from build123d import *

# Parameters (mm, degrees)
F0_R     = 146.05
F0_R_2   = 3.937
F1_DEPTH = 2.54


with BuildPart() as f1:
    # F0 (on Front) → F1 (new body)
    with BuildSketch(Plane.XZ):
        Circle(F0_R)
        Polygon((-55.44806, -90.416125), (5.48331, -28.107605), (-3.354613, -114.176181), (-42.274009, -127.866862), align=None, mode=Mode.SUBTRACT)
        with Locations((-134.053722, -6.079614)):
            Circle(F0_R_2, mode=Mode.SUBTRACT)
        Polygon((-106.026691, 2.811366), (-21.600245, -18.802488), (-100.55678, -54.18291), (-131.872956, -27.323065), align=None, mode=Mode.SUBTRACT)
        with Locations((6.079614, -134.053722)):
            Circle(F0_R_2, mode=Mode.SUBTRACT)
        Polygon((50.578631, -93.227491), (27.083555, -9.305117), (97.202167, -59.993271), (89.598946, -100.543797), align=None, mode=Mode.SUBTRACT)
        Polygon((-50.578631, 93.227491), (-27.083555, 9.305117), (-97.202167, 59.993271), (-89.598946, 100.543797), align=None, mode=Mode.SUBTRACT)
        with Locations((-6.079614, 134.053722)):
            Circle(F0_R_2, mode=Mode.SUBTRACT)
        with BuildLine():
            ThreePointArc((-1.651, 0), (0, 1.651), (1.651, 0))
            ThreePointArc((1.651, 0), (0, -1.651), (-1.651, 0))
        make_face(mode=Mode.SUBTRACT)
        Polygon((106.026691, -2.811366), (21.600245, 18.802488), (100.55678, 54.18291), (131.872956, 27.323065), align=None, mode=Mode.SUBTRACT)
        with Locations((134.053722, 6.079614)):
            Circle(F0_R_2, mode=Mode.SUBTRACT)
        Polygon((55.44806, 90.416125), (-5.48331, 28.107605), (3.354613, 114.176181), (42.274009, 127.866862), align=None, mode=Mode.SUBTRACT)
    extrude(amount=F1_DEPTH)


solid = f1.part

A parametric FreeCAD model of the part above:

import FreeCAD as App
import Part
import Sketcher

V = App.Vector
Q = App.Units.Quantity


def add_polygon(sketch, points):
    """Adds a closed chain of lines whose ends are joined by coincident constraints."""
    first, n = sketch.GeometryCount, len(points)
    for a, b in zip(points, points[1:] + points[:1]):
        sketch.addGeometry(Part.LineSegment(App.Vector(*a, 0), App.Vector(*b, 0)), False)
    for i in range(n):
        sketch.addConstraint(Sketcher.Constraint("Coincident", first + i, 2, first + (i + 1) % n, 1))

doc = App.newDocument("Part")
body = doc.addObject("PartDesign::Body", "Body")

# Sketch on XZ plane
sketch1 = doc.addObject("Sketcher::SketchObject", "Sketch")
body.addObject(sketch1)
sketch1.AttachmentSupport = (doc.XZ_Plane, [""])
sketch1.MapMode = "FlatFace"
sketch1.addGeometry(Part.Circle(V(0, 0, 0), V(0, 0, 1), 146.1), False)  # 0
add_polygon(sketch1, [(-42.3, -127.9), (-55.4, -90.4), (5.5, -28.1), (-3.4, -114.2)])  # lines 1-4
sketch1.addGeometry(Part.Circle(V(-134.1, -6.1, 0), V(0, 0, 1), 3.9), False)  # 5
add_polygon(sketch1, [(-131.9, -27.3), (-106, 2.8), (-21.6, -18.8), (-100.6, -54.2)])  # lines 6-9
sketch1.addGeometry(Part.Circle(V(6.1, -134.1, 0), V(0, 0, 1), 3.9), False)  # 10
add_polygon(sketch1, [(89.6, -100.5), (50.6, -93.2), (27.1, -9.3), (97.2, -60)])  # lines 11-14
add_polygon(sketch1, [(-89.6, 100.5), (-50.6, 93.2), (-27.1, 9.3), (-97.2, 60)])  # lines 15-18
sketch1.addGeometry(Part.Circle(V(-6.1, 134.1, 0), V(0, 0, 1), 3.9), False)  # 19
sketch1.addGeometry(Part.Circle(V(0, 0, 0), V(0, 0, 1), 1.7), False)  # 20
add_polygon(sketch1, [(131.9, 27.3), (106, -2.8), (21.6, 18.8), (100.6, 54.2)])  # lines 21-24
sketch1.addGeometry(Part.Circle(V(134.1, 6.1, 0), V(0, 0, 1), 3.9), False)  # 25
add_polygon(sketch1, [(42.3, 127.9), (55.4, 90.4), (-5.5, 28.1), (3.4, 114.2)])  # lines 26-29
sketch1.addConstraint([
    Sketcher.Constraint("Coincident", 0, 3, -1, 1),
    Sketcher.Constraint("Coincident", 20, 3, -1, 1),
    Sketcher.Constraint("Equal", 5, 10),
    Sketcher.Constraint("Equal", 10, 19),
    Sketcher.Constraint("Equal", 19, 25),
    Sketcher.Constraint("Symmetric", 10, 3, 19, 3, -1, 1),
    Sketcher.Constraint("Symmetric", 5, 3, 25, 3, -1, 1),
    Sketcher.Constraint("Symmetric", 11, 2, 15, 2, -1, 1),
    Sketcher.Constraint("Symmetric", 12, 2, 16, 2, -1, 1),
    Sketcher.Constraint("Symmetric", 13, 2, 17, 2, -1, 1),
    Sketcher.Constraint("Symmetric", 14, 2, 18, 2, -1, 1),
    Sketcher.Constraint("Symmetric", 6, 2, 21, 2, -1, 1),
    Sketcher.Constraint("Symmetric", 7, 2, 22, 2, -1, 1),
    Sketcher.Constraint("Symmetric", 8, 2, 23, 2, -1, 1),
    Sketcher.Constraint("Symmetric", 9, 2, 24, 2, -1, 1),
    Sketcher.Constraint("Symmetric", 1, 2, 26, 2, -1, 1),
    Sketcher.Constraint("Symmetric", 2, 2, 27, 2, -1, 1),
    Sketcher.Constraint("Symmetric", 3, 2, 28, 2, -1, 1),
    Sketcher.Constraint("Symmetric", 4, 2, 29, 2, -1, 1),
    Sketcher.Constraint("Perpendicular", 1, 4),
    Sketcher.Constraint("Perpendicular", 6, 9),
    Sketcher.Constraint("Perpendicular", 11, 14),
    Sketcher.Constraint("Equal", 1, 6),
    Sketcher.Constraint("Equal", 2, 7),
    Sketcher.Constraint("Equal", 3, 8),
    Sketcher.Constraint("Equal", 4, 9),
    Sketcher.Constraint("Equal", 6, 11),
    Sketcher.Constraint("Equal", 7, 12),
    Sketcher.Constraint("Equal", 8, 13),
    Sketcher.Constraint("Equal", 9, 14),
    Sketcher.Constraint("Diameter", 0, Q("11.5 in")),
    Sketcher.Constraint("Diameter", 5, Q("0.31 in")),
    Sketcher.Constraint("Diameter", 20, Q("0.13 in")),
    Sketcher.Constraint("DistanceX", 1, 2, 25, 3, Q("7.4607001 in")),
    Sketcher.Constraint("DistanceX", 6, 2, 2, 2, 111.510001),
    Sketcher.Constraint("DistanceX", 7, 2, 12, 2, 48.6838),
    Sketcher.Constraint("Distance", 4, 41.257171),
    Sketcher.Constraint("DistanceX", 5, 3, -1, 1, 134.053722),
    Sketcher.Constraint("DistanceY", 10, 3, -1, 1, 134.053722),
    Sketcher.Constraint("DistanceX", -1, 1, 2, 2, 5.48331),
    Sketcher.Constraint("DistanceY", 3, 2, -1, 1, 114.176181),
    Sketcher.Constraint("DistanceX", 4, 2, -1, 1, 42.274009),
    Sketcher.Constraint("DistanceY", 4, 2, -1, 1, 127.866862),
    Sketcher.Constraint("DistanceY", 7, 2, -1, 1, 18.802488),
    Sketcher.Constraint("DistanceX", 8, 2, -1, 1, 100.55678),
    Sketcher.Constraint("DistanceY", 8, 2, -1, 1, 54.18291),
    Sketcher.Constraint("DistanceX", -1, 1, 11, 2, 50.578631),
    Sketcher.Constraint("DistanceY", 11, 2, -1, 1, 93.227491),
    Sketcher.Constraint("DistanceY", 1, 2, 5, 3, 84.336511),
    Sketcher.Constraint("DistanceX", 10, 3, 14, 2, 83.519332),
])
pad1 = doc.addObject("PartDesign::Pad", "Pad")
body.addObject(pad1)
pad1.Profile = sketch1
pad1.Length = Q("0.1 in")

doc.recompute()
